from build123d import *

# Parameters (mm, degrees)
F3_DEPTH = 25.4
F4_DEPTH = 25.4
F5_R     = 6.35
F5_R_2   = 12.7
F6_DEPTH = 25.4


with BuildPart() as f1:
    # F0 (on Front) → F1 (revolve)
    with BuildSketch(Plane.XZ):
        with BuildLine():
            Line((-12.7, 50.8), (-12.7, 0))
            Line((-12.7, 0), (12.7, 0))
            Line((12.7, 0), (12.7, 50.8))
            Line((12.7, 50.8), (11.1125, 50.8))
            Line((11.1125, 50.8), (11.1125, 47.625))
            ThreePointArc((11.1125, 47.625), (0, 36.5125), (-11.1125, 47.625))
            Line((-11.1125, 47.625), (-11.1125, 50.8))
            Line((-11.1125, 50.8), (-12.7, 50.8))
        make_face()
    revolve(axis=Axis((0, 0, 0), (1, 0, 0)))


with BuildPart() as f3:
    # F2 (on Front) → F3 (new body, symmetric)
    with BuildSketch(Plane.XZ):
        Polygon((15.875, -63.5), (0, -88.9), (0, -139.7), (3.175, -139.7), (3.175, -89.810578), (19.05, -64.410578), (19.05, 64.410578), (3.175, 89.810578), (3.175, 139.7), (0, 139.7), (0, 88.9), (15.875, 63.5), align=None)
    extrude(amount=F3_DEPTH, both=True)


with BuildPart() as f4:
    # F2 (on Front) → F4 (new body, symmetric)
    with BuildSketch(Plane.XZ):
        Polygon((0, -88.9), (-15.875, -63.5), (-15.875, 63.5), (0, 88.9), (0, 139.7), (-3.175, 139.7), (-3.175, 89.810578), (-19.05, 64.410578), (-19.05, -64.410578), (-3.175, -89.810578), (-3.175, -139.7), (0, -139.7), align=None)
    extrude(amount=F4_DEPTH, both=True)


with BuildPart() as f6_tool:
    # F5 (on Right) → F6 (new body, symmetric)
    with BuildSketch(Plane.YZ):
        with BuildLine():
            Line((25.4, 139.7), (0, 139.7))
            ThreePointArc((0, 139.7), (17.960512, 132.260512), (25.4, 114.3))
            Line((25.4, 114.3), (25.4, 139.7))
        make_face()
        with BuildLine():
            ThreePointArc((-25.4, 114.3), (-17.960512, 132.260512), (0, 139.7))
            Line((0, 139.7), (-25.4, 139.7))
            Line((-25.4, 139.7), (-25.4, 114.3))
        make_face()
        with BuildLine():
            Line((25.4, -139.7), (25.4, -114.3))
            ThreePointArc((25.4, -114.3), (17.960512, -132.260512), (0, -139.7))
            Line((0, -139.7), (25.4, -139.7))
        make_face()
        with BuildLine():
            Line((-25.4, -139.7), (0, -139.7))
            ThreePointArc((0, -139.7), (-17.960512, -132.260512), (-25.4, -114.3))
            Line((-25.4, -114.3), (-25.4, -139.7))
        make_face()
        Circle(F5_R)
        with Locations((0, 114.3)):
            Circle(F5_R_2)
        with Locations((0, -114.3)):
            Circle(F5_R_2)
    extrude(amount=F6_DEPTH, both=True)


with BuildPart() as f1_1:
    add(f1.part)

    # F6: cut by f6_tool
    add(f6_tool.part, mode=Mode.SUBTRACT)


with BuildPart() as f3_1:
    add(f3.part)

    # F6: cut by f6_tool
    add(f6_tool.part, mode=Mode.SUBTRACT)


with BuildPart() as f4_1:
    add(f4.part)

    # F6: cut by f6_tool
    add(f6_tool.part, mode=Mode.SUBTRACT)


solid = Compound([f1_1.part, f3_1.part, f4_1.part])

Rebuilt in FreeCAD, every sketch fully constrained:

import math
import FreeCAD as App
import Part
import Sketcher
from FreeCAD import Vector
Q = App.Units.Quantity

doc = App.newDocument("Part")
body = doc.addObject("PartDesign::Body", "Body")

# Sketch on XZ plane
sketch1 = doc.addObject("Sketcher::SketchObject", "Sketch")
body.addObject(sketch1)
sketch1.AttachmentSupport = (doc.XZ_Plane, [""])
sketch1.MapMode = "FlatFace"
sketch1.addGeometry(Part.LineSegment(Vector(-12.7, 50.8, 0), Vector(-12.7, 0, 0)), False)
sketch1.addGeometry(Part.LineSegment(Vector(-12.7, 0, 0), Vector(12.7, 0, 0)), False)
sketch1.addGeometry(Part.LineSegment(Vector(12.7, 0, 0), Vector(12.7, 50.8, 0)), False)
sketch1.addGeometry(Part.LineSegment(Vector(12.7, 50.8, 0), Vector(11.1, 50.8, 0)), False)
sketch1.addGeometry(Part.LineSegment(Vector(11.1, 50.8, 0), Vector(11.1, 47.6, 0)), False)
sketch1.addGeometry(Part.ArcOfCircle(Part.Circle(Vector(0, 47.6, 0), Vector(0, 0, 1), 11.1), math.radians(180), math.radians(360)), False)
sketch1.addGeometry(Part.LineSegment(Vector(-11.1, 47.6, 0), Vector(-11.1, 50.8, 0)), False)
sketch1.addGeometry(Part.LineSegment(Vector(-11.1, 50.8, 0), Vector(-12.7, 50.8, 0)), False)
sketch1.addConstraint(Sketcher.Constraint("Coincident", 0, 2, 1, 1))
sketch1.addConstraint(Sketcher.Constraint("Coincident", 1, 2, 2, 1))
sketch1.addConstraint(Sketcher.Constraint("Coincident", 2, 2, 3, 1))
sketch1.addConstraint(Sketcher.Constraint("Coincident", 3, 2, 4, 1))
sketch1.addConstraint(Sketcher.Constraint("Tangent", 4, 2, 5, 2))
sketch1.addConstraint(Sketcher.Constraint("Tangent", 5, 1, 6, 1))
sketch1.addConstraint(Sketcher.Constraint("Coincident", 6, 2, 7, 1))
sketch1.addConstraint(Sketcher.Constraint("Coincident", 7, 2, 0, 1))
sketch1.addConstraint(Sketcher.Constraint("Vertical", 0))
sketch1.addConstraint(Sketcher.Constraint("Horizontal", 1))
sketch1.addConstraint(Sketcher.Constraint("Vertical", 2))
sketch1.addConstraint(Sketcher.Constraint("Horizontal", 3))
sketch1.addConstraint(Sketcher.Constraint("Vertical", 4))
sketch1.addConstraint(Sketcher.Constraint("Vertical", 6))
sketch1.addConstraint(Sketcher.Constraint("Horizontal", 7))
sketch1.addConstraint(Sketcher.Constraint("Symmetric", 0, 2, 1, 2, -1, 1))
sketch1.addConstraint(Sketcher.Constraint("Symmetric", 3, 2, 6, 2, -2))
sketch1.addConstraint(Sketcher.Constraint("DistanceX", 1, 1, 1, 2, Q("1 in")))
sketch1.addConstraint(Sketcher.Constraint("DistanceY", 0, 2, 0, 1, Q("2 in")))
sketch1.addConstraint(Sketcher.Constraint("Radius", 5, Q("0.4375 in")))
sketch1.addConstraint(Sketcher.Constraint("DistanceY", 4, 2, 4, 1, Q("0.125 in")))
revolution = doc.addObject("PartDesign::Revolution", "Revolution")
body.addObject(revolution)
revolution.Profile = sketch1
revolution.ReferenceAxis = (sketch1, ["H_Axis"])
revolution.Angle = 360
body2 = doc.addObject("PartDesign::Body", "Body001")

# Sketch on XZ plane
sketch2 = doc.addObject("Sketcher::SketchObject", "Sketch001")
body2.addObject(sketch2)
sketch2.AttachmentSupport = (doc.getObject("XZ_Plane001"), [""])
sketch2.MapMode = "FlatFace"
sketch2.addGeometry(Part.LineSegment(Vector(15.9, -63.5, 0), Vector(0, -88.9, 0)), False)
sketch2.addGeometry(Part.LineSegment(Vector(0, -88.9, 0), Vector(0, -139.7, 0)), False)
sketch2.addGeometry(Part.LineSegment(Vector(0, -139.7, 0), Vector(3.2, -139.7, 0)), False)
sketch2.addGeometry(Part.LineSegment(Vector(3.2, -139.7, 0), Vector(3.2, -89.8, 0)), False)
sketch2.addGeometry(Part.LineSegment(Vector(3.2, -89.8, 0), Vector(19.1, -64.4, 0)), False)
sketch2.addGeometry(Part.LineSegment(Vector(19.1, -64.4, 0), Vector(19.1, 64.4, 0)), False)
sketch2.addGeometry(Part.LineSegment(Vector(19.1, 64.4, 0), Vector(3.2, 89.8, 0)), False)
sketch2.addGeometry(Part.LineSegment(Vector(3.2, 89.8, 0), Vector(3.2, 139.7, 0)), False)
sketch2.addGeometry(Part.LineSegment(Vector(3.2, 139.7, 0), Vector(0, 139.7, 0)), False)
sketch2.addGeometry(Part.LineSegment(Vector(0, 139.7, 0), Vector(0, 88.9, 0)), False)
sketch2.addGeometry(Part.LineSegment(Vector(0, 88.9, 0), Vector(15.9, 63.5, 0)), False)
sketch2.addGeometry(Part.LineSegment(Vector(15.9, 63.5, 0), Vector(15.9, -63.5, 0)), False)
sketch2.addConstraint(Sketcher.Constraint("Coincident", 0, 2, 1, 1))
sketch2.addConstraint(Sketcher.Constraint("Coincident", 1, 2, 2, 1))
sketch2.addConstraint(Sketcher.Constraint("Coincident", 2, 2, 3, 1))
sketch2.addConstraint(Sketcher.Constraint("Coincident", 3, 2, 4, 1))
sketch2.addConstraint(Sketcher.Constraint("Coincident", 4, 2, 5, 1))
sketch2.addConstraint(Sketcher.Constraint("Coincident", 5, 2, 6, 1))
sketch2.addConstraint(Sketcher.Constraint("Coincident", 6, 2, 7, 1))
sketch2.addConstraint(Sketcher.Constraint("Coincident", 7, 2, 8, 1))
sketch2.addConstraint(Sketcher.Constraint("Coincident", 8, 2, 9, 1))
sketch2.addConstraint(Sketcher.Constraint("Coincident", 9, 2, 10, 1))
sketch2.addConstraint(Sketcher.Constraint("Coincident", 10, 2, 11, 1))
sketch2.addConstraint(Sketcher.Constraint("Coincident", 11, 2, 0, 1))
sketch2.addConstraint(Sketcher.Constraint("Vertical", 1))
sketch2.addConstraint(Sketcher.Constraint("Horizontal", 2))
sketch2.addConstraint(Sketcher.Constraint("Vertical", 3))
sketch2.addConstraint(Sketcher.Constraint("Vertical", 5))
sketch2.addConstraint(Sketcher.Constraint("Vertical", 7))
sketch2.addConstraint(Sketcher.Constraint("Horizontal", 8))
sketch2.addConstraint(Sketcher.Constraint("Vertical", 9))
sketch2.addConstraint(Sketcher.Constraint("Vertical", 11))
sketch2.addConstraint(Sketcher.Constraint("Symmetric", 1, 2, 8, 2, -1, 1))
sketch2.addConstraint(Sketcher.Constraint("Symmetric", 3, 2, 6, 2, -1))
sketch2.addConstraint(Sketcher.Constraint("Symmetric", 0, 2, 9, 2, -1))
sketch2.addConstraint(Sketcher.Constraint("Parallel", 0, 4))
sketch2.addConstraint(Sketcher.Constraint("Parallel", 6, 10))
sketch2.addConstraint(Sketcher.Constraint("Equal", 0, 4))
sketch2.addConstraint(Sketcher.Constraint("Equal", 4, 6))
sketch2.addConstraint(Sketcher.Constraint("DistanceY", 1, 2, 1, 1, Q("2 in")))
sketch2.addConstraint(Sketcher.Constraint("DistanceY", 11, 2, 11, 1, Q("5 in")))
sketch2.addConstraint(Sketcher.Constraint("DistanceY", 3, 2, 4, 2, Q("1 in")))
sketch2.addConstraint(Sketcher.Constraint("DistanceX", 6, 2, 10, 2, Q("0.5 in")))
sketch2.addConstraint(Sketcher.Constraint("DistanceX", 2, 1, 2, 2, Q("0.125 in")))
sketch2.addConstraint(Sketcher.Constraint("DistanceY", 3, 1, 3, 2, Q("49.889422 mm")))
pad1 = doc.addObject("PartDesign::Pad", "Pad")
body2.addObject(pad1)
pad1.Profile = sketch2
pad1.Length = Q("2 in")
pad1.Midplane = True
body3 = doc.addObject("PartDesign::Body", "Body002")

# Sketch on XZ plane
sketch3 = doc.addObject("Sketcher::SketchObject", "Sketch002")
body3.addObject(sketch3)
sketch3.AttachmentSupport = (doc.getObject("XZ_Plane002"), [""])
sketch3.MapMode = "FlatFace"
sketch3.addGeometry(Part.LineSegment(Vector(0, -88.9, 0), Vector(-15.9, -63.5, 0)), False)
sketch3.addGeometry(Part.LineSegment(Vector(-15.9, -63.5, 0), Vector(-15.9, 63.5, 0)), False)
sketch3.addGeometry(Part.LineSegment(Vector(-15.9, 63.5, 0), Vector(0, 88.9, 0)), False)
sketch3.addGeometry(Part.LineSegment(Vector(0, 88.9, 0), Vector(0, 139.7, 0)), False)
sketch3.addGeometry(Part.LineSegment(Vector(0, 139.7, 0), Vector(-3.2, 139.7, 0)), False)
sketch3.addGeometry(Part.LineSegment(Vector(-3.2, 139.7, 0), Vector(-3.2, 89.8, 0)), False)
sketch3.addGeometry(Part.LineSegment(Vector(-3.2, 89.8, 0), Vector(-19.1, 64.4, 0)), False)
sketch3.addGeometry(Part.LineSegment(Vector(-19.1, 64.4, 0), Vector(-19.1, -64.4, 0)), False)
sketch3.addGeometry(Part.LineSegment(Vector(-19.1, -64.4, 0), Vector(-3.2, -89.8, 0)), False)
sketch3.addGeometry(Part.LineSegment(Vector(-3.2, -89.8, 0), Vector(-3.2, -139.7, 0)), False)
sketch3.addGeometry(Part.LineSegment(Vector(-3.2, -139.7, 0), Vector(0, -139.7, 0)), False)
sketch3.addGeometry(Part.LineSegment(Vector(0, -139.7, 0), Vector(0, -88.9, 0)), False)
sketch3.addConstraint(Sketcher.Constraint("Coincident", 0, 2, 1, 1))
sketch3.addConstraint(Sketcher.Constraint("Coincident", 1, 2, 2, 1))
sketch3.addConstraint(Sketcher.Constraint("Coincident", 2, 2, 3, 1))
sketch3.addConstraint(Sketcher.Constraint("Coincident", 3, 2, 4, 1))
sketch3.addConstraint(Sketcher.Constraint("Coincident", 4, 2, 5, 1))
sketch3.addConstraint(Sketcher.Constraint("Coincident", 5, 2, 6, 1))
sketch3.addConstraint(Sketcher.Constraint("Coincident", 6, 2, 7, 1))
sketch3.addConstraint(Sketcher.Constraint("Coincident", 7, 2, 8, 1))
sketch3.addConstraint(Sketcher.Constraint("Coincident", 8, 2, 9, 1))
sketch3.addConstraint(Sketcher.Constraint("Coincident", 9, 2, 10, 1))
sketch3.addConstraint(Sketcher.Constraint("Coincident", 10, 2, 11, 1))
sketch3.addConstraint(Sketcher.Constraint("Coincident", 11, 2, 0, 1))
sketch3.addConstraint(Sketcher.Constraint("Vertical", 1))
sketch3.addConstraint(Sketcher.Constraint("Vertical", 3))
sketch3.addConstraint(Sketcher.Constraint("Horizontal", 4))
sketch3.addConstraint(Sketcher.Constraint("Vertical", 5))
sketch3.addConstraint(Sketcher.Constraint("Vertical", 7))
sketch3.addConstraint(Sketcher.Constraint("Vertical", 9))
sketch3.addConstraint(Sketcher.Constraint("Horizontal", 10))
sketch3.addConstraint(Sketcher.Constraint("Vertical", 11))
sketch3.addConstraint(Sketcher.Constraint("Symmetric", 3, 2, 10, 2, -1, 1))
sketch3.addConstraint(Sketcher.Constraint("Symmetric", 5, 2, 8, 2, -1))
sketch3.addConstraint(Sketcher.Constraint("Symmetric", 2, 2, 11, 2, -1))
sketch3.addConstraint(Sketcher.Constraint("Parallel", 2, 6))
sketch3.addConstraint(Sketcher.Constraint("Parallel", 0, 8))
sketch3.addConstraint(Sketcher.Constraint("Equal", 0, 2))
sketch3.addConstraint(Sketcher.Constraint("Equal", 2, 6))
sketch3.addConstraint(Sketcher.Constraint("DistanceY", 1, 1, 1, 2, Q("5 in")))
sketch3.addConstraint(Sketcher.Constraint("DistanceY", 3, 1, 3, 2, Q("2 in")))
sketch3.addConstraint(Sketcher.Constraint("DistanceY", 1, 2, 2, 2, Q("1 in")))
sketch3.addConstraint(Sketcher.Constraint("DistanceX", 1, 2, 4, 2, Q("0.5 in")))
sketch3.addConstraint(Sketcher.Constraint("DistanceX", 4, 2, 4, 1, Q("0.125 in")))
sketch3.addConstraint(Sketcher.Constraint("DistanceY", 5, 2, 5, 1, Q("49.889422 mm")))
pad2 = doc.addObject("PartDesign::Pad", "Pad001")
body3.addObject(pad2)
pad2.Profile = sketch3
pad2.Length = Q("2 in")
pad2.Midplane = True
body4 = doc.addObject("PartDesign::Body", "Body003")
body4.AllowCompound = True

# Sketch on YZ plane
sketch4 = doc.addObject("Sketcher::SketchObject", "Sketch003")
body4.addObject(sketch4)
sketch4.AttachmentSupport = (doc.getObject("YZ_Plane003"), [""])
sketch4.MapMode = "FlatFace"
sketch4.addGeometry(Part.LineSegment(Vector(25, 140, 0), Vector(0, 140, 0)), False)
sketch4.addGeometry(Part.ArcOfCircle(Part.Circle(Vector(0, 114, 0), Vector(0, 0, 1), 25), math.radians(0), math.radians(90)), False)
sketch4.addGeometry(Part.LineSegment(Vector(25, 114, 0), Vector(25, 140, 0)), False)
sketch4.addGeometry(Part.ArcOfCircle(Part.Circle(Vector(0, 114, 0), Vector(0, 0, 1), 25), math.radians(90), math.radians(180)), False)
sketch4.addGeometry(Part.LineSegment(Vector(0, 140, 0), Vector(-25, 140, 0)), False)
sketch4.addGeometry(Part.LineSegment(Vector(-25, 140, 0), Vector(-25, 114, 0)), False)
sketch4.addGeometry(Part.LineSegment(Vector(25, -140, 0), Vector(25, -114, 0)), False)
sketch4.addGeometry(Part.ArcOfCircle(Part.Circle(Vector(0, -114, 0), Vector(0, 0, 1), 25), math.radians(-90), math.radians(0)), False)
sketch4.addGeometry(Part.LineSegment(Vector(0, -140, 0), Vector(25, -140, 0)), False)
sketch4.addGeometry(Part.LineSegment(Vector(-25, -140, 0), Vector(0, -140, 0)), False)
sketch4.addGeometry(Part.ArcOfCircle(Part.Circle(Vector(0, -114, 0), Vector(0, 0, 1), 25), math.radians(-180), math.radians(-90)), False)
sketch4.addGeometry(Part.LineSegment(Vector(-25, -114, 0), Vector(-25, -140, 0)), False)
sketch4.addGeometry(Part.Circle(Vector(0, 0, 0), Vector(0, 0, 1), 6), False)
sketch4.addGeometry(Part.Circle(Vector(0, 114, 0), Vector(0, 0, 1), 13), False)
sketch4.addGeometry(Part.Circle(Vector(0, -114, 0), Vector(0, 0, 1), 13), False)
sketch4.addConstraint(Sketcher.Constraint("Tangent", 0, 2, 1, 2))
sketch4.addConstraint(Sketcher.Constraint("Tangent", 1, 1, 2, 1))
sketch4.addConstraint(Sketcher.Constraint("Coincident", 2, 2, 0, 1))
sketch4.addConstraint(Sketcher.Constraint("Tangent", 3, 1, 4, 1))
sketch4.addConstraint(Sketcher.Constraint("Coincident", 4, 2, 5, 1))
sketch4.addConstraint(Sketcher.Constraint("Tangent", 5, 2, 3, 2))
sketch4.addConstraint(Sketcher.Constraint("Tangent", 6, 2, 7, 2))
sketch4.addConstraint(Sketcher.Constraint("Tangent", 7, 1, 8, 1))
sketch4.addConstraint(Sketcher.Constraint("Coincident", 8, 2, 6, 1))
sketch4.addConstraint(Sketcher.Constraint("Tangent", 9, 2, 10, 2))
sketch4.addConstraint(Sketcher.Constraint("Tangent", 10, 1, 11, 1))
sketch4.addConstraint(Sketcher.Constraint("Coincident", 11, 2, 9, 1))
sketch4.addConstraint(Sketcher.Constraint("Horizontal", 0))
sketch4.addConstraint(Sketcher.Constraint("Vertical", 2))
sketch4.addConstraint(Sketcher.Constraint("Horizontal", 4))
sketch4.addConstraint(Sketcher.Constraint("Vertical", 5))
sketch4.addConstraint(Sketcher.Constraint("Vertical", 6))
sketch4.addConstraint(Sketcher.Constraint("Horizontal", 8))
sketch4.addConstraint(Sketcher.Constraint("Horizontal", 9))
sketch4.addConstraint(Sketcher.Constraint("Vertical", 11))
sketch4.addConstraint(Sketcher.Constraint("Coincident", 12, 3, -1, 1))
sketch4.addConstraint(Sketcher.Constraint("Coincident", 3, 3, 1, 3))
sketch4.addConstraint(Sketcher.Constraint("Coincident", 10, 3, 7, 3))
sketch4.addConstraint(Sketcher.Constraint("Coincident", 13, 3, 1, 3))
sketch4.addConstraint(Sketcher.Constraint("Coincident", 14, 3, 7, 3))
sketch4.addConstraint(Sketcher.Constraint("Equal", 1, 3))
sketch4.addConstraint(Sketcher.Constraint("Equal", 3, 7))
sketch4.addConstraint(Sketcher.Constraint("Equal", 7, 10))
sketch4.addConstraint(Sketcher.Constraint("Equal", 13, 14))
sketch4.addConstraint(Sketcher.Constraint("Symmetric", 1, 3, 7, 3, -1, 1))
sketch4.addConstraint(Sketcher.Constraint("PointOnObject", 1, 3, -2))
sketch4.addConstraint(Sketcher.Constraint("Diameter", 13, Q("1 in")))
sketch4.addConstraint(Sketcher.Constraint("Radius", 1, Q("1 in")))
sketch4.addConstraint(Sketcher.Constraint("Diameter", 12, Q("0.5 in")))
sketch4.addConstraint(Sketcher.Constraint("DistanceY", 7, 3, 1, 3, Q("8.9999999 in")))
pad3 = doc.addObject("PartDesign::Pad", "Pad002")
body4.addObject(pad3)
pad3.Profile = sketch4
pad3.Length = Q("2 in")
pad3.Midplane = True
doc.recompute()

body5 = doc.addObject("PartDesign::Body", "Body004")
body5.BaseFeature = body4
boolean = doc.addObject("PartDesign::Boolean", "Boolean")
body.addObject(boolean)
boolean.Type = "Cut"
boolean.addObjects([body5])
doc.recompute()

body6 = doc.addObject("PartDesign::Body", "Body005")
body6.BaseFeature = body4
boolean2 = doc.addObject("PartDesign::Boolean", "Boolean001")
body2.addObject(boolean2)
boolean2.Type = "Cut"
boolean2.addObjects([body6])
doc.recompute()

boolean3 = doc.addObject("PartDesign::Boolean", "Boolean002")
body3.addObject(boolean3)
boolean3.Type = "Cut"
boolean3.addObjects([body4])

doc.recompute()
